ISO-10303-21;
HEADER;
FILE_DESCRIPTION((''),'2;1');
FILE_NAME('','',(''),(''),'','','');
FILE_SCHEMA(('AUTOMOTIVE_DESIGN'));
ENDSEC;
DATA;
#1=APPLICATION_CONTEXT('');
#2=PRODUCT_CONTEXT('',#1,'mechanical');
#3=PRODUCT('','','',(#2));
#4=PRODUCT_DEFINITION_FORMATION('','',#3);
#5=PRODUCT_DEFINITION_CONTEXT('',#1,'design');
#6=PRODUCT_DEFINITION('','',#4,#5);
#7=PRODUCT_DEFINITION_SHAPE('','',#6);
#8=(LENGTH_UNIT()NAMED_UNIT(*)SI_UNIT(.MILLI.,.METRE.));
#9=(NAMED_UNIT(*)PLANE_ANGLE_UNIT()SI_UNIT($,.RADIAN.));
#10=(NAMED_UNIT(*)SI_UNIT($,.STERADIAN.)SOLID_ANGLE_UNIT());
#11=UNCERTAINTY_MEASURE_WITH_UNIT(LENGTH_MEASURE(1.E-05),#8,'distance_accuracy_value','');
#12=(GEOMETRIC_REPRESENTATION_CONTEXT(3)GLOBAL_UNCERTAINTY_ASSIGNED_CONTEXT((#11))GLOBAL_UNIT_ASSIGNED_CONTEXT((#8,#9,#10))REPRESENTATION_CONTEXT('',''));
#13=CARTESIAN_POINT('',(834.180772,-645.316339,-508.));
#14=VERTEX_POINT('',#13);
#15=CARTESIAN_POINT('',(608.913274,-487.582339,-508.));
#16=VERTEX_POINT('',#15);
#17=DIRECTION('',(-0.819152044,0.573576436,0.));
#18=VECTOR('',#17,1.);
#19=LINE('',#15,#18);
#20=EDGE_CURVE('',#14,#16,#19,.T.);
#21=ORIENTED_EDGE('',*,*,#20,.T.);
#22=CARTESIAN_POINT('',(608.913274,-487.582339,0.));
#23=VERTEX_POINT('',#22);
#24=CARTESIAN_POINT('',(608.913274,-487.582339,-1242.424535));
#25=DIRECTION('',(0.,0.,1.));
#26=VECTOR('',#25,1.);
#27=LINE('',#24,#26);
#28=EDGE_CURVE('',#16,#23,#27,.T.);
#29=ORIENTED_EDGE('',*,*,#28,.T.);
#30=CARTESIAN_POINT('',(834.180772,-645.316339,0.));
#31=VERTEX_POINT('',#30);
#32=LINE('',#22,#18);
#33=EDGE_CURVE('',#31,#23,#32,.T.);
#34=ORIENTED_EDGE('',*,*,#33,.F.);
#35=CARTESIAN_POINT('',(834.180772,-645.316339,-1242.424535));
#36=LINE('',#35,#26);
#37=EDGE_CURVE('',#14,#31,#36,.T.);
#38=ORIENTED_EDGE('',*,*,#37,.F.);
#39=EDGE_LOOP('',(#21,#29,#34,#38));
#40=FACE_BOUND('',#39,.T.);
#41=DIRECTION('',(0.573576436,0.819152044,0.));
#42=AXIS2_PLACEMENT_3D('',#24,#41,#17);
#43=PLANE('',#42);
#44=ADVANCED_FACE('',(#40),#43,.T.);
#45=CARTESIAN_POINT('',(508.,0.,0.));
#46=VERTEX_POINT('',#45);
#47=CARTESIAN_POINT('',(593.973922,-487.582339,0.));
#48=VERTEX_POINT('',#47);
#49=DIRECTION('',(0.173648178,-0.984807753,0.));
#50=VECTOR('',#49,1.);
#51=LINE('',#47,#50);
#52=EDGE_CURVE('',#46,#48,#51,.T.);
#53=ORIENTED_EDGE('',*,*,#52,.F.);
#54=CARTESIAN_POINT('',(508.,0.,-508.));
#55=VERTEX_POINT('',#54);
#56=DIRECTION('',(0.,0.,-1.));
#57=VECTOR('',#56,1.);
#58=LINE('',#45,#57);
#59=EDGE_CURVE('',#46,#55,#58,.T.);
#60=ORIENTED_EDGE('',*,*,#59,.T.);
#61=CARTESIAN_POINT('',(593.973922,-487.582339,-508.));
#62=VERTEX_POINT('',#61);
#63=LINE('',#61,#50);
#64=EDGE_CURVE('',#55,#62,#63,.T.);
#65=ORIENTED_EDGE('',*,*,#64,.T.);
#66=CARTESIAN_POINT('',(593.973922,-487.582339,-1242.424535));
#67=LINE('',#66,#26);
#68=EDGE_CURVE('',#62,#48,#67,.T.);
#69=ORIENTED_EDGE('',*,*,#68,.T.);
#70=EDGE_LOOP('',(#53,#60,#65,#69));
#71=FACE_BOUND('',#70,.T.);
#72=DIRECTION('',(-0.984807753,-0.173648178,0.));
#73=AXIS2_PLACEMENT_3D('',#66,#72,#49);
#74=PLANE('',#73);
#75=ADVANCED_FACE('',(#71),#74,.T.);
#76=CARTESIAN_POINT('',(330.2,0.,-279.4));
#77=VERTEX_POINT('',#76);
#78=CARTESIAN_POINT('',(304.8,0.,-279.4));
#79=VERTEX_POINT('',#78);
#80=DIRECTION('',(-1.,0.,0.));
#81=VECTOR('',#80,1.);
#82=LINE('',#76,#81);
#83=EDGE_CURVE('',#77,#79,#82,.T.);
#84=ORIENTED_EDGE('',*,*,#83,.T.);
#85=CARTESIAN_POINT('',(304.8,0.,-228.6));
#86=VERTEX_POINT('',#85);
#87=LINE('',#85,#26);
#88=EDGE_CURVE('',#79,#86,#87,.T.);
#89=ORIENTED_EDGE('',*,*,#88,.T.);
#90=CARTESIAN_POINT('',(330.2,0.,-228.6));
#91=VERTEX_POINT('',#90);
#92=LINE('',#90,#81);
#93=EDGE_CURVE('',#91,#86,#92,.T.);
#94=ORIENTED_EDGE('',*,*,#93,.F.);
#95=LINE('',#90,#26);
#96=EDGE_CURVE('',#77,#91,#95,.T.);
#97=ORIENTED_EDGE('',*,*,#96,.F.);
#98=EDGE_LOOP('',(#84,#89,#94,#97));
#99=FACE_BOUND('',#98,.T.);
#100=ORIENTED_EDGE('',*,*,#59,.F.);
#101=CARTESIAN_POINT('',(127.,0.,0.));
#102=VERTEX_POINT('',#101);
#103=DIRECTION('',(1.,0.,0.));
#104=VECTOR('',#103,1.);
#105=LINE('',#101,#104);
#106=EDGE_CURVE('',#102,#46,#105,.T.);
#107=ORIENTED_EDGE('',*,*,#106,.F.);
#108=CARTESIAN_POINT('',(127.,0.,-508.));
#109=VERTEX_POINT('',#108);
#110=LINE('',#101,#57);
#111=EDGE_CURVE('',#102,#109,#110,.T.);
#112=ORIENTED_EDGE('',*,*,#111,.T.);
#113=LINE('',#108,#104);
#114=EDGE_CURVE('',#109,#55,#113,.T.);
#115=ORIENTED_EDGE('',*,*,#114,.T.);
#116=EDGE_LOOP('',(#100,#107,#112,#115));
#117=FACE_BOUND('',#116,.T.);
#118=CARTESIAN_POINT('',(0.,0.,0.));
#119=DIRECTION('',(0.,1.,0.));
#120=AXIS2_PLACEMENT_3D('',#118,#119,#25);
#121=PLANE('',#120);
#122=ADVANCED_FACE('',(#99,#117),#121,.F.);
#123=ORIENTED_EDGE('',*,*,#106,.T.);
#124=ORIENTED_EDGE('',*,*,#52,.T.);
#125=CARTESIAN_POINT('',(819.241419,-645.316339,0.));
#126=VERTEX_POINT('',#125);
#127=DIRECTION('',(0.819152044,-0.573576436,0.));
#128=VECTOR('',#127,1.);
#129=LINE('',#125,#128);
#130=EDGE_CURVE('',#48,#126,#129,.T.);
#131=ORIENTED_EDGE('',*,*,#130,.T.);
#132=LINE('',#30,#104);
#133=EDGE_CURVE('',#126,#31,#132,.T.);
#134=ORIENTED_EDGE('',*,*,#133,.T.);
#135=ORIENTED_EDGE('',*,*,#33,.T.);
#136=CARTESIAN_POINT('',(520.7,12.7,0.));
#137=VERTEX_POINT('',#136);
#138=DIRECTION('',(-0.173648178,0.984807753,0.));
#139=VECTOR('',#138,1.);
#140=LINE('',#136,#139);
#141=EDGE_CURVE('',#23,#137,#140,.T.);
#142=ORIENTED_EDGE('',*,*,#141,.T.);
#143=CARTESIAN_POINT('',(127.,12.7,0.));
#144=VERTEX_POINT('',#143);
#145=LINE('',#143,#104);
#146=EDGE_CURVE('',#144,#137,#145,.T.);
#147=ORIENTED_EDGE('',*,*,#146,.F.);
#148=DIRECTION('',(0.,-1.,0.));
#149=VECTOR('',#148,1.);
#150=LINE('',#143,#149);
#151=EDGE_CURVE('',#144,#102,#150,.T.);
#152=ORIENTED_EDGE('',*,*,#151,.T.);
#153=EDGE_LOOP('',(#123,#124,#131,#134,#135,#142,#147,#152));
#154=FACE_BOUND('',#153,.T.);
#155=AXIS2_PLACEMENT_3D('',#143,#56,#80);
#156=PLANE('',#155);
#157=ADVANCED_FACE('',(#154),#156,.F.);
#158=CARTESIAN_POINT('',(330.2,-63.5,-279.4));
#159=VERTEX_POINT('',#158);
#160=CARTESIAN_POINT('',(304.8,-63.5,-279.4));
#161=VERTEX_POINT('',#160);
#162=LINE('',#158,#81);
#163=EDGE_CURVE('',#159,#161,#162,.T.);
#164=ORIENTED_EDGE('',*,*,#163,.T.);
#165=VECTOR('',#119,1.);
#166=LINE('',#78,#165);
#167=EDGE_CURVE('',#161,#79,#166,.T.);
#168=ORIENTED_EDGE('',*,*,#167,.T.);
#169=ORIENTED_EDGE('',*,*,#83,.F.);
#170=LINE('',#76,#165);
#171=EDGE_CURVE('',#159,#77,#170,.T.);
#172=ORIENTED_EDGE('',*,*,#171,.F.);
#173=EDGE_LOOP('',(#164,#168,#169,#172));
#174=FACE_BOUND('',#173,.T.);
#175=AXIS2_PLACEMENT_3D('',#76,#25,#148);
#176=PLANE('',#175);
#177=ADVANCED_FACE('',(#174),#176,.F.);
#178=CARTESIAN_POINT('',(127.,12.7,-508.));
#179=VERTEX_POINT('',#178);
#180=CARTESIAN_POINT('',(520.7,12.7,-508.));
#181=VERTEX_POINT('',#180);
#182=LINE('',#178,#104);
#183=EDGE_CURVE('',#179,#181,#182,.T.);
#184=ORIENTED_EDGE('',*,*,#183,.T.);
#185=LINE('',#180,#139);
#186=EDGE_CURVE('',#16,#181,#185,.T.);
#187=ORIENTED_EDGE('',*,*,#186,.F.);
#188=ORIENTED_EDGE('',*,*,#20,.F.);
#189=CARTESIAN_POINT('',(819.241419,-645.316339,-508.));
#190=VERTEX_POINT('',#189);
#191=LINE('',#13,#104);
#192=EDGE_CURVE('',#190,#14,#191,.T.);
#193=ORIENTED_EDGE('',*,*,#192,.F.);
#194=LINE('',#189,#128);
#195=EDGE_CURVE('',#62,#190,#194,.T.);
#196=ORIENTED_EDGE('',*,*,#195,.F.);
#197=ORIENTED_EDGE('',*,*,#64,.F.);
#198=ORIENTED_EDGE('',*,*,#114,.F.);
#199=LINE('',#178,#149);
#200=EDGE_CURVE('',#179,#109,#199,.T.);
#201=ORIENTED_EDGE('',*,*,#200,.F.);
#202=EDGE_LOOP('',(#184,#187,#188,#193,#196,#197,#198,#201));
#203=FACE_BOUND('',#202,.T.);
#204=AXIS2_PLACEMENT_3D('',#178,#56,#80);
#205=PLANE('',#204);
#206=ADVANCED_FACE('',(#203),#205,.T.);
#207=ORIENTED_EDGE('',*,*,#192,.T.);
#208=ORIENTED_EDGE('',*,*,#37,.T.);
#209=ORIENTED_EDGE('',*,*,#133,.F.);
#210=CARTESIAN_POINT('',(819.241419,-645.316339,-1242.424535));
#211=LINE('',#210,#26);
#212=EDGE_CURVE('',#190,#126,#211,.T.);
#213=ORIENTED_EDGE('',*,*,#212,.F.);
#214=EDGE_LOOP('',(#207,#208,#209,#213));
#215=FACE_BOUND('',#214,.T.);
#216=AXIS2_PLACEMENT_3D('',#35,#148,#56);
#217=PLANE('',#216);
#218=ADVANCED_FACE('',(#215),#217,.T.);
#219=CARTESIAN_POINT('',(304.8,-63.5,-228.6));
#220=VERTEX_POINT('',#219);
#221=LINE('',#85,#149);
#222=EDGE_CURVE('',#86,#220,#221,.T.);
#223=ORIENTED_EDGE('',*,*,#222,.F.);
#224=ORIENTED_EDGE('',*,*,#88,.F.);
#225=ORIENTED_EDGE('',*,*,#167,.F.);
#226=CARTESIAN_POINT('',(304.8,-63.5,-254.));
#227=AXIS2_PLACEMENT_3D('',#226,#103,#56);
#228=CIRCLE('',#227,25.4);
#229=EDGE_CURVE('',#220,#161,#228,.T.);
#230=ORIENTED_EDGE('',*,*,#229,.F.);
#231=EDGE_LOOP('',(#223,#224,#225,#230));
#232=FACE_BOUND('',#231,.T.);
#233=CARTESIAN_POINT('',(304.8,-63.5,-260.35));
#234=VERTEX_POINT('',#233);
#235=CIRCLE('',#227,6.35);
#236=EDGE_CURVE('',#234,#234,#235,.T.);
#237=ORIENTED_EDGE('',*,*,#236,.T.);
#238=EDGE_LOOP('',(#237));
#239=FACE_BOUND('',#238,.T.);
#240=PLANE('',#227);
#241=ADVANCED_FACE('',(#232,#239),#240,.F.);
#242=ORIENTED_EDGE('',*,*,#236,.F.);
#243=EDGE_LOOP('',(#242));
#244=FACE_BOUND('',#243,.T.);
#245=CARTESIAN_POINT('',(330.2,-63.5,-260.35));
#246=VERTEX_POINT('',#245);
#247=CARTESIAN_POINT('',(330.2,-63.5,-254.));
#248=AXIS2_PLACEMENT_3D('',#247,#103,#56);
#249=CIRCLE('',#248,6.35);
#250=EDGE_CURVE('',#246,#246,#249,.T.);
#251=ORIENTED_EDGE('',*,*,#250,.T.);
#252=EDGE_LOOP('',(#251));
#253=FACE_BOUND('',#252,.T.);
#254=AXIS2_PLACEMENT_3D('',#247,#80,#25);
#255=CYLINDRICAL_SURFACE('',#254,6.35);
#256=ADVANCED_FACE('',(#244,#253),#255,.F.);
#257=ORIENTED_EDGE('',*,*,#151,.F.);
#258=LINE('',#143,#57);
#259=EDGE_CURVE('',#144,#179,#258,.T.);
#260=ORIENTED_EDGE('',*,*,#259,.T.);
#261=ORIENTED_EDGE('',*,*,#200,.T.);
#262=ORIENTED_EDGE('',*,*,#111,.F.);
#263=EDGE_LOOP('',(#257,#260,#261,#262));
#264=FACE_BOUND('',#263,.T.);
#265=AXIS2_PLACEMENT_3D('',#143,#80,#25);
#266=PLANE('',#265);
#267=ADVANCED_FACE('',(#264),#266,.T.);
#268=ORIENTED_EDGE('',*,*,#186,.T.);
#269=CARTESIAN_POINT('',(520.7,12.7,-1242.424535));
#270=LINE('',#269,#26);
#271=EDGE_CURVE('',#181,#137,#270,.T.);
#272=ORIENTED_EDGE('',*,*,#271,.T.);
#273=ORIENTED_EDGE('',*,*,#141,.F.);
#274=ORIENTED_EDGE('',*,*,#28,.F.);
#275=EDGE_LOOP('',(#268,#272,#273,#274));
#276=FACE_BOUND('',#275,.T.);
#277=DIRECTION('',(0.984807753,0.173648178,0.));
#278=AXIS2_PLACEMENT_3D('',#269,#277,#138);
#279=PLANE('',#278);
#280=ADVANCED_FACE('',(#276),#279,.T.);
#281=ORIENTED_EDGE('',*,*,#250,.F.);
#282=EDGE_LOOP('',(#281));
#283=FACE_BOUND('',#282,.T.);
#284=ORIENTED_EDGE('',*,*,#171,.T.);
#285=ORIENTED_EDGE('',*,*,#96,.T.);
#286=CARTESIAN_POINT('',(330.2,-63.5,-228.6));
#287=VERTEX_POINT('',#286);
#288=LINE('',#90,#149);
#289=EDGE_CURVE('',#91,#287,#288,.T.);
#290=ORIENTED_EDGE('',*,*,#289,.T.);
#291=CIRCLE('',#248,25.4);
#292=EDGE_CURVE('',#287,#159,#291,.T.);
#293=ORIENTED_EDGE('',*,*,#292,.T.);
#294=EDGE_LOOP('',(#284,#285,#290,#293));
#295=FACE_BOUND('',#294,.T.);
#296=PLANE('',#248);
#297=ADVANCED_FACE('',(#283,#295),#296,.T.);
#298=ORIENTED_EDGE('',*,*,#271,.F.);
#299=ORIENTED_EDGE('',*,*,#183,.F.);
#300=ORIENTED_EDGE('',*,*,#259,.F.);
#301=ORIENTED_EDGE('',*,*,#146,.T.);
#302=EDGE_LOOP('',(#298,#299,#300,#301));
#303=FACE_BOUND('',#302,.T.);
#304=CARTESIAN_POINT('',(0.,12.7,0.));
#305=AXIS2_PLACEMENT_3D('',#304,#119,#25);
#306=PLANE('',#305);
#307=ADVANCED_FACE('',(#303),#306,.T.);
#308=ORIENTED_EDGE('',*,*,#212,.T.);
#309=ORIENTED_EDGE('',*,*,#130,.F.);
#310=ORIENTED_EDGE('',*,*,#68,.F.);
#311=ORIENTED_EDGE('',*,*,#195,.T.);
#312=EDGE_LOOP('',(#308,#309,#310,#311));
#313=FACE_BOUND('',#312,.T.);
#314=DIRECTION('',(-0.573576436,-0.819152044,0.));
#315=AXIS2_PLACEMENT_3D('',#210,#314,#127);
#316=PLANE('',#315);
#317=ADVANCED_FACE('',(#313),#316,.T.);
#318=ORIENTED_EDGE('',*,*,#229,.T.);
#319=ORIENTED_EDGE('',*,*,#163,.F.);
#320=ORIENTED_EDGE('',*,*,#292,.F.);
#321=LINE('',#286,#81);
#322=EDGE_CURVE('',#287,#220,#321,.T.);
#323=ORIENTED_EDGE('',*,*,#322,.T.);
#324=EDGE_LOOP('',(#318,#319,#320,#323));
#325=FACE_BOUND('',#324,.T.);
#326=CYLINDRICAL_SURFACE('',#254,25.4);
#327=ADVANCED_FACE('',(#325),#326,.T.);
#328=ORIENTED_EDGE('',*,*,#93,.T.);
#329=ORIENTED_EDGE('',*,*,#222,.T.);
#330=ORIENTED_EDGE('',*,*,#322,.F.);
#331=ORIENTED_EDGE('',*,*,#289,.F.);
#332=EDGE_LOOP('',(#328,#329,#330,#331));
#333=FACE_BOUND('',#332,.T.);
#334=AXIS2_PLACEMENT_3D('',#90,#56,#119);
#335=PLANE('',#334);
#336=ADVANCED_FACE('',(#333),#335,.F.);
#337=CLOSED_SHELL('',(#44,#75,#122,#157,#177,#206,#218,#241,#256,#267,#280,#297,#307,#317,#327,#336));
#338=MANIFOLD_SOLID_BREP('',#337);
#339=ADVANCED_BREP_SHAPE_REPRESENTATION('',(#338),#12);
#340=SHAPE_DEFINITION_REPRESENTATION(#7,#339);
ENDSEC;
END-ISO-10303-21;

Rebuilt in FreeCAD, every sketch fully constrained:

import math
import FreeCAD as App
import Part
import Sketcher
from FreeCAD import Vector
Q = App.Units.Quantity

doc = App.newDocument("Part")
params = doc.addObject("Spreadsheet::Sheet", "Params")
for row, (alias, value) in enumerate([
    ("sketch1_width", "15 in"),
    ("sketch1_height", "20 in"),
    ("pad1_length", "0.5 in"),
    ("sketch2_radius", "1 in"),
    ("sketch2_diameter", "0.5 in"),
    ("sketch2_width", "2.5 in"),
    ("pad2_length", "1 in"),
    ("sketch3_length", "20 in"),
    ("sketch3_width", "0.5 in"),
    ("pad3_length", "20 in"),
], start=1):
    params.set(f"A{row}", alias)
    params.set(f"B{row}", "=" + value)
    params.setAlias(f"B{row}", alias)

body = doc.addObject("PartDesign::Body", "Body")

# Sketch on XZ plane
sketch1 = body.newObject("Sketcher::SketchObject", "Sketch")
sketch1.AttachmentSupport = (doc.getObject("XZ_Plane"), [""])
sketch1.MapMode = "FlatFace"
sketch1.addGeometry([
    Part.LineSegment(Vector(127, -508, 0), Vector(127, 0, 0)),
    Part.LineSegment(Vector(127, 0, 0), Vector(508, 0, 0)),
    Part.LineSegment(Vector(508, 0, 0), Vector(508, -508, 0)),
    Part.LineSegment(Vector(508, -508, 0), Vector(127, -508, 0)),
], False)
sketch1.addConstraint([
    Sketcher.Constraint("Coincident", 0, 2, 1, 1),
    Sketcher.Constraint("Coincident", 1, 2, 2, 1),
    Sketcher.Constraint("Coincident", 2, 2, 3, 1),
    Sketcher.Constraint("Coincident", 3, 2, 0, 1),
    Sketcher.Constraint("Vertical", 0),
    Sketcher.Constraint("Horizontal", 1),
    Sketcher.Constraint("Vertical", 2),
    Sketcher.Constraint("Horizontal", 3),
    Sketcher.Constraint("PointOnObject", 0, 2, -1),
    Sketcher.Constraint("DistanceX", 1, 1, 1, 2, Q("15 in")),
    Sketcher.Constraint("DistanceY", 0, 1, 0, 2, Q("20 in")),
    Sketcher.Constraint("DistanceX", -1, 1, 0, 2, Q("5 in")),
])
sketch1.setExpression("Constraints[9]", "Params.sketch1_width")
sketch1.setExpression("Constraints[10]", "Params.sketch1_height")
pad1 = body.newObject("PartDesign::Pad", "Pad")
pad1.Profile = sketch1
pad1.setExpression("Length", "Params.pad1_length")
pad1.Reversed = True

# Sketch on YZ plane
sketch2 = body.newObject("Sketcher::SketchObject", "Sketch001")
sketch2.AttachmentSupport = (doc.getObject("YZ_Plane"), [""])
sketch2.MapMode = "FlatFace"
sketch2.AttachmentOffset = App.Placement(Vector(0, 0, 12.5 * 25.4), App.Rotation())
sketch2.addGeometry([
    Part.LineSegment(Vector(0, -228.6, 0), Vector(-63.5, -228.6, 0)),  # 0
    Part.ArcOfCircle(Part.Circle(Vector(-63.5, -254, 0), Vector(0, 0, 1), 25.4), math.radians(90), math.radians(270)),  # 1
    Part.LineSegment(Vector(-63.5, -279.4, 0), Vector(0, -279.4, 0)),  # 2
    Part.LineSegment(Vector(0, -279.4, 0), Vector(0, -228.6, 0)),  # 3
    Part.Circle(Vector(-63.5, -254, 0), Vector(0, 0, 1), 6.35),  # 4
], False)
sketch2.addConstraint([
    Sketcher.Constraint("Tangent", 0, 2, 1, 1),
    Sketcher.Constraint("Tangent", 1, 2, 2, 1),
    Sketcher.Constraint("Coincident", 2, 2, 3, 1),
    Sketcher.Constraint("Coincident", 3, 2, 0, 1),
    Sketcher.Constraint("Horizontal", 0),
    Sketcher.Constraint("Horizontal", 2),
    Sketcher.Constraint("Vertical", 3),
    Sketcher.Constraint("Coincident", 4, 3, 1, 3),
    Sketcher.Constraint("PointOnObject", 2, 2, -2),
    Sketcher.Constraint("Radius", 1, Q("1 in")),
    Sketcher.Constraint("Diameter", 4, Q("0.5 in")),
    Sketcher.Constraint("DistanceX", 0, 2, 0, 1, Q("2.5 in")),
    Sketcher.Constraint("DistanceY", 1, 3, -1, 1, Q("10 in")),
])
sketch2.setExpression("Constraints[9]", "Params.sketch2_radius")
sketch2.setExpression("Constraints[10]", "Params.sketch2_diameter")
sketch2.setExpression("Constraints[11]", "Params.sketch2_width")
pad2 = body.newObject("PartDesign::Pad", "Pad001")
pad2.Profile = sketch2
pad2.setExpression("Length", "Params.pad2_length")
pad2.Midplane = True

# Sketch on XY plane
sketch3 = body.newObject("Sketcher::SketchObject", "Sketch002")
sketch3.AttachmentSupport = (doc.getObject("XY_Plane"), [""])
sketch3.MapMode = "FlatFace"
sketch3.addGeometry([
    Part.LineSegment(Vector(608.913274, -487.582339, 0), Vector(520.7, 12.7, 0)),  # 0
    Part.LineSegment(Vector(520.7, 12.7, 0), Vector(508, 12.7, 0)),  # 1
    Part.LineSegment(Vector(508, 12.7, 0), Vector(508, 0, 0)),  # 2
    Part.LineSegment(Vector(508, 0, 0), Vector(593.973922, -487.582339, 0)),  # 3
    Part.LineSegment(Vector(593.973922, -487.582339, 0), Vector(819.241419, -645.316339, 0)),  # 4
    Part.LineSegment(Vector(819.241419, -645.316339, 0), Vector(834.180772, -645.316339, 0)),  # 5
    Part.LineSegment(Vector(834.180772, -645.316339, 0), Vector(608.913274, -487.582339, 0)),  # 6
], False)
sketch3.addConstraint([
    Sketcher.Constraint("Coincident", 0, 2, 1, 1),
    Sketcher.Constraint("Coincident", 1, 2, 2, 1),
    Sketcher.Constraint("Coincident", 2, 2, 3, 1),
    Sketcher.Constraint("Coincident", 3, 2, 4, 1),
    Sketcher.Constraint("Coincident", 4, 2, 5, 1),
    Sketcher.Constraint("Coincident", 5, 2, 6, 1),
    Sketcher.Constraint("Coincident", 6, 2, 0, 1),
    Sketcher.Constraint("Horizontal", 1),
    Sketcher.Constraint("Vertical", 2),
    Sketcher.Constraint("Horizontal", 5),
    Sketcher.Constraint("PointOnObject", 2, 2, -1),
    Sketcher.Constraint("Parallel", 0, 3),
    Sketcher.Constraint("Parallel", 4, 6),
    Sketcher.Constraint("Horizontal", 3, 2, 6, 2),
    Sketcher.Constraint("Equal", 1, 2),
    Sketcher.Constraint("Distance", 0, Q("20 in")),
    Sketcher.Constraint("DistanceX", 1, 2, 1, 1, Q("0.5 in")),
    Sketcher.Constraint("DistanceX", -1, 1, 1, 2, Q("20 in")),
    Sketcher.Constraint("Angle", 0, Q("100 deg")),
    Sketcher.Constraint("Angle", 4, Q("-35 deg")),
    Sketcher.Constraint("DistanceY", 4, 2, 3, 2, Q("6.21 in")),
])
sketch3.setExpression("Constraints[15]", "Params.sketch3_length")
sketch3.setExpression("Constraints[16]", "Params.sketch3_width")
pad3 = body.newObject("PartDesign::Pad", "Pad002")
pad3.Profile = sketch3
pad3.setExpression("Length", "Params.pad3_length")
pad3.Reversed = True

doc.recompute()
